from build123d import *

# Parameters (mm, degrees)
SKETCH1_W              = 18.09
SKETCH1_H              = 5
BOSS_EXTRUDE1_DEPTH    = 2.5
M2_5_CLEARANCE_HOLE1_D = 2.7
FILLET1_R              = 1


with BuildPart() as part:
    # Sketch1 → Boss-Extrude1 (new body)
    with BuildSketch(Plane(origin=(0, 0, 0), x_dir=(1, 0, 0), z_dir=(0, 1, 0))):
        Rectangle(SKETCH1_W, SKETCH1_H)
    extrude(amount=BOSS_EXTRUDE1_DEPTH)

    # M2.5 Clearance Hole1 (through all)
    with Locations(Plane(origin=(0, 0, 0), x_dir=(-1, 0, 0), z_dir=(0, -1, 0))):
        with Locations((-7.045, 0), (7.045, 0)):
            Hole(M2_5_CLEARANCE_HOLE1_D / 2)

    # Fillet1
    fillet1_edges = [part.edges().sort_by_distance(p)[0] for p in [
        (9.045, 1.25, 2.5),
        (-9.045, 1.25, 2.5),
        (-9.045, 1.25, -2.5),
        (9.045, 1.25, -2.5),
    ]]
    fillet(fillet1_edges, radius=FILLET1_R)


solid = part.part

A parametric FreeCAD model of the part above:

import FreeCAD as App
import Part
import Sketcher

V = App.Vector


def edges_at(feature, points):
    """Names of the edges that pass closest to the given points."""
    edges = feature.Shape.Edges
    near = lambda p: min(range(len(edges)), key=lambda i: edges[i].distToShape(Part.Vertex(*p))[0])
    return sorted({f"Edge{near(p) + 1}" for p in points})

doc = App.newDocument("Part")
body = doc.addObject("PartDesign::Body", "Body")

# Sketch on XZ plane
sketch1 = doc.addObject("Sketcher::SketchObject", "Sketch")
body.addObject(sketch1)
sketch1.AttachmentSupport = (doc.XZ_Plane, [""])
sketch1.MapMode = "FlatFace"
sketch1.addGeometry(Part.LineSegment(V(-9, -2, 0), V(-9, 2, 0)), False)
sketch1.addGeometry(Part.LineSegment(V(-9, 2, 0), V(9, 2, 0)), False)
sketch1.addGeometry(Part.LineSegment(V(9, 2, 0), V(9, -2, 0)), False)
sketch1.addGeometry(Part.LineSegment(V(9, -2, 0), V(-9, -2, 0)), False)
sketch1.addConstraint(Sketcher.Constraint("Coincident", 0, 2, 1, 1))
sketch1.addConstraint(Sketcher.Constraint("Coincident", 1, 2, 2, 1))
sketch1.addConstraint(Sketcher.Constraint("Coincident", 2, 2, 3, 1))
sketch1.addConstraint(Sketcher.Constraint("Coincident", 3, 2, 0, 1))
sketch1.addConstraint(Sketcher.Constraint("Vertical", 0))
sketch1.addConstraint(Sketcher.Constraint("Horizontal", 1))
sketch1.addConstraint(Sketcher.Constraint("Vertical", 2))
sketch1.addConstraint(Sketcher.Constraint("Horizontal", 3))
sketch1.addConstraint(Sketcher.Constraint("Symmetric", 0, 2, 2, 2, -1, 1))
sketch1.addConstraint(Sketcher.Constraint("DistanceY", 0, 1, 0, 2, 5.0))
sketch1.addConstraint(Sketcher.Constraint("DistanceX", 1, 1, 1, 2, 18.09))
pad1 = doc.addObject("PartDesign::Pad", "Pad")
body.addObject(pad1)
pad1.Profile = sketch1
pad1.Length = 2.5
pad1.Reversed = True

# Sketch on XZ plane
sketch2 = doc.addObject("Sketcher::SketchObject", "Sketch001")
body.addObject(sketch2)
sketch2.AttachmentSupport = (doc.XZ_Plane, [""])
sketch2.MapMode = "FlatFace"
sketch2.addGeometry(Part.Circle(V(7, 0, 0), V(0, 0, 1), 1.4), False)
sketch2.addGeometry(Part.Circle(V(-7, 0, 0), V(0, 0, 1), 1.4), False)
sketch2.addConstraint(Sketcher.Constraint("Equal", 0, 1))
sketch2.addConstraint(Sketcher.Constraint("Symmetric", 0, 3, 1, 3, -1, 1))
sketch2.addConstraint(Sketcher.Constraint("PointOnObject", 0, 3, -1))
sketch2.addConstraint(Sketcher.Constraint("Diameter", 0, 2.7))
sketch2.addConstraint(Sketcher.Constraint("DistanceX", 1, 3, 0, 3, 14.09))
doc.recompute()
hole = doc.addObject("PartDesign::Hole", "Hole")
body.addObject(hole)
hole.Profile = sketch2
hole.ThreadType = "None"
hole.Diameter = 2.7
hole.DepthType = "ThroughAll"
doc.recompute()

fillet = doc.addObject("PartDesign::Fillet", "Fillet")
body.addObject(fillet)
fillet.Base = (hole, edges_at(hole, [
    (9.045, 1.25, 2.5),
    (-9.045, 1.25, 2.5),
    (-9.045, 1.25, -2.5),
    (9.045, 1.25, -2.5),
]))
fillet.Radius = 1

doc.recompute()
